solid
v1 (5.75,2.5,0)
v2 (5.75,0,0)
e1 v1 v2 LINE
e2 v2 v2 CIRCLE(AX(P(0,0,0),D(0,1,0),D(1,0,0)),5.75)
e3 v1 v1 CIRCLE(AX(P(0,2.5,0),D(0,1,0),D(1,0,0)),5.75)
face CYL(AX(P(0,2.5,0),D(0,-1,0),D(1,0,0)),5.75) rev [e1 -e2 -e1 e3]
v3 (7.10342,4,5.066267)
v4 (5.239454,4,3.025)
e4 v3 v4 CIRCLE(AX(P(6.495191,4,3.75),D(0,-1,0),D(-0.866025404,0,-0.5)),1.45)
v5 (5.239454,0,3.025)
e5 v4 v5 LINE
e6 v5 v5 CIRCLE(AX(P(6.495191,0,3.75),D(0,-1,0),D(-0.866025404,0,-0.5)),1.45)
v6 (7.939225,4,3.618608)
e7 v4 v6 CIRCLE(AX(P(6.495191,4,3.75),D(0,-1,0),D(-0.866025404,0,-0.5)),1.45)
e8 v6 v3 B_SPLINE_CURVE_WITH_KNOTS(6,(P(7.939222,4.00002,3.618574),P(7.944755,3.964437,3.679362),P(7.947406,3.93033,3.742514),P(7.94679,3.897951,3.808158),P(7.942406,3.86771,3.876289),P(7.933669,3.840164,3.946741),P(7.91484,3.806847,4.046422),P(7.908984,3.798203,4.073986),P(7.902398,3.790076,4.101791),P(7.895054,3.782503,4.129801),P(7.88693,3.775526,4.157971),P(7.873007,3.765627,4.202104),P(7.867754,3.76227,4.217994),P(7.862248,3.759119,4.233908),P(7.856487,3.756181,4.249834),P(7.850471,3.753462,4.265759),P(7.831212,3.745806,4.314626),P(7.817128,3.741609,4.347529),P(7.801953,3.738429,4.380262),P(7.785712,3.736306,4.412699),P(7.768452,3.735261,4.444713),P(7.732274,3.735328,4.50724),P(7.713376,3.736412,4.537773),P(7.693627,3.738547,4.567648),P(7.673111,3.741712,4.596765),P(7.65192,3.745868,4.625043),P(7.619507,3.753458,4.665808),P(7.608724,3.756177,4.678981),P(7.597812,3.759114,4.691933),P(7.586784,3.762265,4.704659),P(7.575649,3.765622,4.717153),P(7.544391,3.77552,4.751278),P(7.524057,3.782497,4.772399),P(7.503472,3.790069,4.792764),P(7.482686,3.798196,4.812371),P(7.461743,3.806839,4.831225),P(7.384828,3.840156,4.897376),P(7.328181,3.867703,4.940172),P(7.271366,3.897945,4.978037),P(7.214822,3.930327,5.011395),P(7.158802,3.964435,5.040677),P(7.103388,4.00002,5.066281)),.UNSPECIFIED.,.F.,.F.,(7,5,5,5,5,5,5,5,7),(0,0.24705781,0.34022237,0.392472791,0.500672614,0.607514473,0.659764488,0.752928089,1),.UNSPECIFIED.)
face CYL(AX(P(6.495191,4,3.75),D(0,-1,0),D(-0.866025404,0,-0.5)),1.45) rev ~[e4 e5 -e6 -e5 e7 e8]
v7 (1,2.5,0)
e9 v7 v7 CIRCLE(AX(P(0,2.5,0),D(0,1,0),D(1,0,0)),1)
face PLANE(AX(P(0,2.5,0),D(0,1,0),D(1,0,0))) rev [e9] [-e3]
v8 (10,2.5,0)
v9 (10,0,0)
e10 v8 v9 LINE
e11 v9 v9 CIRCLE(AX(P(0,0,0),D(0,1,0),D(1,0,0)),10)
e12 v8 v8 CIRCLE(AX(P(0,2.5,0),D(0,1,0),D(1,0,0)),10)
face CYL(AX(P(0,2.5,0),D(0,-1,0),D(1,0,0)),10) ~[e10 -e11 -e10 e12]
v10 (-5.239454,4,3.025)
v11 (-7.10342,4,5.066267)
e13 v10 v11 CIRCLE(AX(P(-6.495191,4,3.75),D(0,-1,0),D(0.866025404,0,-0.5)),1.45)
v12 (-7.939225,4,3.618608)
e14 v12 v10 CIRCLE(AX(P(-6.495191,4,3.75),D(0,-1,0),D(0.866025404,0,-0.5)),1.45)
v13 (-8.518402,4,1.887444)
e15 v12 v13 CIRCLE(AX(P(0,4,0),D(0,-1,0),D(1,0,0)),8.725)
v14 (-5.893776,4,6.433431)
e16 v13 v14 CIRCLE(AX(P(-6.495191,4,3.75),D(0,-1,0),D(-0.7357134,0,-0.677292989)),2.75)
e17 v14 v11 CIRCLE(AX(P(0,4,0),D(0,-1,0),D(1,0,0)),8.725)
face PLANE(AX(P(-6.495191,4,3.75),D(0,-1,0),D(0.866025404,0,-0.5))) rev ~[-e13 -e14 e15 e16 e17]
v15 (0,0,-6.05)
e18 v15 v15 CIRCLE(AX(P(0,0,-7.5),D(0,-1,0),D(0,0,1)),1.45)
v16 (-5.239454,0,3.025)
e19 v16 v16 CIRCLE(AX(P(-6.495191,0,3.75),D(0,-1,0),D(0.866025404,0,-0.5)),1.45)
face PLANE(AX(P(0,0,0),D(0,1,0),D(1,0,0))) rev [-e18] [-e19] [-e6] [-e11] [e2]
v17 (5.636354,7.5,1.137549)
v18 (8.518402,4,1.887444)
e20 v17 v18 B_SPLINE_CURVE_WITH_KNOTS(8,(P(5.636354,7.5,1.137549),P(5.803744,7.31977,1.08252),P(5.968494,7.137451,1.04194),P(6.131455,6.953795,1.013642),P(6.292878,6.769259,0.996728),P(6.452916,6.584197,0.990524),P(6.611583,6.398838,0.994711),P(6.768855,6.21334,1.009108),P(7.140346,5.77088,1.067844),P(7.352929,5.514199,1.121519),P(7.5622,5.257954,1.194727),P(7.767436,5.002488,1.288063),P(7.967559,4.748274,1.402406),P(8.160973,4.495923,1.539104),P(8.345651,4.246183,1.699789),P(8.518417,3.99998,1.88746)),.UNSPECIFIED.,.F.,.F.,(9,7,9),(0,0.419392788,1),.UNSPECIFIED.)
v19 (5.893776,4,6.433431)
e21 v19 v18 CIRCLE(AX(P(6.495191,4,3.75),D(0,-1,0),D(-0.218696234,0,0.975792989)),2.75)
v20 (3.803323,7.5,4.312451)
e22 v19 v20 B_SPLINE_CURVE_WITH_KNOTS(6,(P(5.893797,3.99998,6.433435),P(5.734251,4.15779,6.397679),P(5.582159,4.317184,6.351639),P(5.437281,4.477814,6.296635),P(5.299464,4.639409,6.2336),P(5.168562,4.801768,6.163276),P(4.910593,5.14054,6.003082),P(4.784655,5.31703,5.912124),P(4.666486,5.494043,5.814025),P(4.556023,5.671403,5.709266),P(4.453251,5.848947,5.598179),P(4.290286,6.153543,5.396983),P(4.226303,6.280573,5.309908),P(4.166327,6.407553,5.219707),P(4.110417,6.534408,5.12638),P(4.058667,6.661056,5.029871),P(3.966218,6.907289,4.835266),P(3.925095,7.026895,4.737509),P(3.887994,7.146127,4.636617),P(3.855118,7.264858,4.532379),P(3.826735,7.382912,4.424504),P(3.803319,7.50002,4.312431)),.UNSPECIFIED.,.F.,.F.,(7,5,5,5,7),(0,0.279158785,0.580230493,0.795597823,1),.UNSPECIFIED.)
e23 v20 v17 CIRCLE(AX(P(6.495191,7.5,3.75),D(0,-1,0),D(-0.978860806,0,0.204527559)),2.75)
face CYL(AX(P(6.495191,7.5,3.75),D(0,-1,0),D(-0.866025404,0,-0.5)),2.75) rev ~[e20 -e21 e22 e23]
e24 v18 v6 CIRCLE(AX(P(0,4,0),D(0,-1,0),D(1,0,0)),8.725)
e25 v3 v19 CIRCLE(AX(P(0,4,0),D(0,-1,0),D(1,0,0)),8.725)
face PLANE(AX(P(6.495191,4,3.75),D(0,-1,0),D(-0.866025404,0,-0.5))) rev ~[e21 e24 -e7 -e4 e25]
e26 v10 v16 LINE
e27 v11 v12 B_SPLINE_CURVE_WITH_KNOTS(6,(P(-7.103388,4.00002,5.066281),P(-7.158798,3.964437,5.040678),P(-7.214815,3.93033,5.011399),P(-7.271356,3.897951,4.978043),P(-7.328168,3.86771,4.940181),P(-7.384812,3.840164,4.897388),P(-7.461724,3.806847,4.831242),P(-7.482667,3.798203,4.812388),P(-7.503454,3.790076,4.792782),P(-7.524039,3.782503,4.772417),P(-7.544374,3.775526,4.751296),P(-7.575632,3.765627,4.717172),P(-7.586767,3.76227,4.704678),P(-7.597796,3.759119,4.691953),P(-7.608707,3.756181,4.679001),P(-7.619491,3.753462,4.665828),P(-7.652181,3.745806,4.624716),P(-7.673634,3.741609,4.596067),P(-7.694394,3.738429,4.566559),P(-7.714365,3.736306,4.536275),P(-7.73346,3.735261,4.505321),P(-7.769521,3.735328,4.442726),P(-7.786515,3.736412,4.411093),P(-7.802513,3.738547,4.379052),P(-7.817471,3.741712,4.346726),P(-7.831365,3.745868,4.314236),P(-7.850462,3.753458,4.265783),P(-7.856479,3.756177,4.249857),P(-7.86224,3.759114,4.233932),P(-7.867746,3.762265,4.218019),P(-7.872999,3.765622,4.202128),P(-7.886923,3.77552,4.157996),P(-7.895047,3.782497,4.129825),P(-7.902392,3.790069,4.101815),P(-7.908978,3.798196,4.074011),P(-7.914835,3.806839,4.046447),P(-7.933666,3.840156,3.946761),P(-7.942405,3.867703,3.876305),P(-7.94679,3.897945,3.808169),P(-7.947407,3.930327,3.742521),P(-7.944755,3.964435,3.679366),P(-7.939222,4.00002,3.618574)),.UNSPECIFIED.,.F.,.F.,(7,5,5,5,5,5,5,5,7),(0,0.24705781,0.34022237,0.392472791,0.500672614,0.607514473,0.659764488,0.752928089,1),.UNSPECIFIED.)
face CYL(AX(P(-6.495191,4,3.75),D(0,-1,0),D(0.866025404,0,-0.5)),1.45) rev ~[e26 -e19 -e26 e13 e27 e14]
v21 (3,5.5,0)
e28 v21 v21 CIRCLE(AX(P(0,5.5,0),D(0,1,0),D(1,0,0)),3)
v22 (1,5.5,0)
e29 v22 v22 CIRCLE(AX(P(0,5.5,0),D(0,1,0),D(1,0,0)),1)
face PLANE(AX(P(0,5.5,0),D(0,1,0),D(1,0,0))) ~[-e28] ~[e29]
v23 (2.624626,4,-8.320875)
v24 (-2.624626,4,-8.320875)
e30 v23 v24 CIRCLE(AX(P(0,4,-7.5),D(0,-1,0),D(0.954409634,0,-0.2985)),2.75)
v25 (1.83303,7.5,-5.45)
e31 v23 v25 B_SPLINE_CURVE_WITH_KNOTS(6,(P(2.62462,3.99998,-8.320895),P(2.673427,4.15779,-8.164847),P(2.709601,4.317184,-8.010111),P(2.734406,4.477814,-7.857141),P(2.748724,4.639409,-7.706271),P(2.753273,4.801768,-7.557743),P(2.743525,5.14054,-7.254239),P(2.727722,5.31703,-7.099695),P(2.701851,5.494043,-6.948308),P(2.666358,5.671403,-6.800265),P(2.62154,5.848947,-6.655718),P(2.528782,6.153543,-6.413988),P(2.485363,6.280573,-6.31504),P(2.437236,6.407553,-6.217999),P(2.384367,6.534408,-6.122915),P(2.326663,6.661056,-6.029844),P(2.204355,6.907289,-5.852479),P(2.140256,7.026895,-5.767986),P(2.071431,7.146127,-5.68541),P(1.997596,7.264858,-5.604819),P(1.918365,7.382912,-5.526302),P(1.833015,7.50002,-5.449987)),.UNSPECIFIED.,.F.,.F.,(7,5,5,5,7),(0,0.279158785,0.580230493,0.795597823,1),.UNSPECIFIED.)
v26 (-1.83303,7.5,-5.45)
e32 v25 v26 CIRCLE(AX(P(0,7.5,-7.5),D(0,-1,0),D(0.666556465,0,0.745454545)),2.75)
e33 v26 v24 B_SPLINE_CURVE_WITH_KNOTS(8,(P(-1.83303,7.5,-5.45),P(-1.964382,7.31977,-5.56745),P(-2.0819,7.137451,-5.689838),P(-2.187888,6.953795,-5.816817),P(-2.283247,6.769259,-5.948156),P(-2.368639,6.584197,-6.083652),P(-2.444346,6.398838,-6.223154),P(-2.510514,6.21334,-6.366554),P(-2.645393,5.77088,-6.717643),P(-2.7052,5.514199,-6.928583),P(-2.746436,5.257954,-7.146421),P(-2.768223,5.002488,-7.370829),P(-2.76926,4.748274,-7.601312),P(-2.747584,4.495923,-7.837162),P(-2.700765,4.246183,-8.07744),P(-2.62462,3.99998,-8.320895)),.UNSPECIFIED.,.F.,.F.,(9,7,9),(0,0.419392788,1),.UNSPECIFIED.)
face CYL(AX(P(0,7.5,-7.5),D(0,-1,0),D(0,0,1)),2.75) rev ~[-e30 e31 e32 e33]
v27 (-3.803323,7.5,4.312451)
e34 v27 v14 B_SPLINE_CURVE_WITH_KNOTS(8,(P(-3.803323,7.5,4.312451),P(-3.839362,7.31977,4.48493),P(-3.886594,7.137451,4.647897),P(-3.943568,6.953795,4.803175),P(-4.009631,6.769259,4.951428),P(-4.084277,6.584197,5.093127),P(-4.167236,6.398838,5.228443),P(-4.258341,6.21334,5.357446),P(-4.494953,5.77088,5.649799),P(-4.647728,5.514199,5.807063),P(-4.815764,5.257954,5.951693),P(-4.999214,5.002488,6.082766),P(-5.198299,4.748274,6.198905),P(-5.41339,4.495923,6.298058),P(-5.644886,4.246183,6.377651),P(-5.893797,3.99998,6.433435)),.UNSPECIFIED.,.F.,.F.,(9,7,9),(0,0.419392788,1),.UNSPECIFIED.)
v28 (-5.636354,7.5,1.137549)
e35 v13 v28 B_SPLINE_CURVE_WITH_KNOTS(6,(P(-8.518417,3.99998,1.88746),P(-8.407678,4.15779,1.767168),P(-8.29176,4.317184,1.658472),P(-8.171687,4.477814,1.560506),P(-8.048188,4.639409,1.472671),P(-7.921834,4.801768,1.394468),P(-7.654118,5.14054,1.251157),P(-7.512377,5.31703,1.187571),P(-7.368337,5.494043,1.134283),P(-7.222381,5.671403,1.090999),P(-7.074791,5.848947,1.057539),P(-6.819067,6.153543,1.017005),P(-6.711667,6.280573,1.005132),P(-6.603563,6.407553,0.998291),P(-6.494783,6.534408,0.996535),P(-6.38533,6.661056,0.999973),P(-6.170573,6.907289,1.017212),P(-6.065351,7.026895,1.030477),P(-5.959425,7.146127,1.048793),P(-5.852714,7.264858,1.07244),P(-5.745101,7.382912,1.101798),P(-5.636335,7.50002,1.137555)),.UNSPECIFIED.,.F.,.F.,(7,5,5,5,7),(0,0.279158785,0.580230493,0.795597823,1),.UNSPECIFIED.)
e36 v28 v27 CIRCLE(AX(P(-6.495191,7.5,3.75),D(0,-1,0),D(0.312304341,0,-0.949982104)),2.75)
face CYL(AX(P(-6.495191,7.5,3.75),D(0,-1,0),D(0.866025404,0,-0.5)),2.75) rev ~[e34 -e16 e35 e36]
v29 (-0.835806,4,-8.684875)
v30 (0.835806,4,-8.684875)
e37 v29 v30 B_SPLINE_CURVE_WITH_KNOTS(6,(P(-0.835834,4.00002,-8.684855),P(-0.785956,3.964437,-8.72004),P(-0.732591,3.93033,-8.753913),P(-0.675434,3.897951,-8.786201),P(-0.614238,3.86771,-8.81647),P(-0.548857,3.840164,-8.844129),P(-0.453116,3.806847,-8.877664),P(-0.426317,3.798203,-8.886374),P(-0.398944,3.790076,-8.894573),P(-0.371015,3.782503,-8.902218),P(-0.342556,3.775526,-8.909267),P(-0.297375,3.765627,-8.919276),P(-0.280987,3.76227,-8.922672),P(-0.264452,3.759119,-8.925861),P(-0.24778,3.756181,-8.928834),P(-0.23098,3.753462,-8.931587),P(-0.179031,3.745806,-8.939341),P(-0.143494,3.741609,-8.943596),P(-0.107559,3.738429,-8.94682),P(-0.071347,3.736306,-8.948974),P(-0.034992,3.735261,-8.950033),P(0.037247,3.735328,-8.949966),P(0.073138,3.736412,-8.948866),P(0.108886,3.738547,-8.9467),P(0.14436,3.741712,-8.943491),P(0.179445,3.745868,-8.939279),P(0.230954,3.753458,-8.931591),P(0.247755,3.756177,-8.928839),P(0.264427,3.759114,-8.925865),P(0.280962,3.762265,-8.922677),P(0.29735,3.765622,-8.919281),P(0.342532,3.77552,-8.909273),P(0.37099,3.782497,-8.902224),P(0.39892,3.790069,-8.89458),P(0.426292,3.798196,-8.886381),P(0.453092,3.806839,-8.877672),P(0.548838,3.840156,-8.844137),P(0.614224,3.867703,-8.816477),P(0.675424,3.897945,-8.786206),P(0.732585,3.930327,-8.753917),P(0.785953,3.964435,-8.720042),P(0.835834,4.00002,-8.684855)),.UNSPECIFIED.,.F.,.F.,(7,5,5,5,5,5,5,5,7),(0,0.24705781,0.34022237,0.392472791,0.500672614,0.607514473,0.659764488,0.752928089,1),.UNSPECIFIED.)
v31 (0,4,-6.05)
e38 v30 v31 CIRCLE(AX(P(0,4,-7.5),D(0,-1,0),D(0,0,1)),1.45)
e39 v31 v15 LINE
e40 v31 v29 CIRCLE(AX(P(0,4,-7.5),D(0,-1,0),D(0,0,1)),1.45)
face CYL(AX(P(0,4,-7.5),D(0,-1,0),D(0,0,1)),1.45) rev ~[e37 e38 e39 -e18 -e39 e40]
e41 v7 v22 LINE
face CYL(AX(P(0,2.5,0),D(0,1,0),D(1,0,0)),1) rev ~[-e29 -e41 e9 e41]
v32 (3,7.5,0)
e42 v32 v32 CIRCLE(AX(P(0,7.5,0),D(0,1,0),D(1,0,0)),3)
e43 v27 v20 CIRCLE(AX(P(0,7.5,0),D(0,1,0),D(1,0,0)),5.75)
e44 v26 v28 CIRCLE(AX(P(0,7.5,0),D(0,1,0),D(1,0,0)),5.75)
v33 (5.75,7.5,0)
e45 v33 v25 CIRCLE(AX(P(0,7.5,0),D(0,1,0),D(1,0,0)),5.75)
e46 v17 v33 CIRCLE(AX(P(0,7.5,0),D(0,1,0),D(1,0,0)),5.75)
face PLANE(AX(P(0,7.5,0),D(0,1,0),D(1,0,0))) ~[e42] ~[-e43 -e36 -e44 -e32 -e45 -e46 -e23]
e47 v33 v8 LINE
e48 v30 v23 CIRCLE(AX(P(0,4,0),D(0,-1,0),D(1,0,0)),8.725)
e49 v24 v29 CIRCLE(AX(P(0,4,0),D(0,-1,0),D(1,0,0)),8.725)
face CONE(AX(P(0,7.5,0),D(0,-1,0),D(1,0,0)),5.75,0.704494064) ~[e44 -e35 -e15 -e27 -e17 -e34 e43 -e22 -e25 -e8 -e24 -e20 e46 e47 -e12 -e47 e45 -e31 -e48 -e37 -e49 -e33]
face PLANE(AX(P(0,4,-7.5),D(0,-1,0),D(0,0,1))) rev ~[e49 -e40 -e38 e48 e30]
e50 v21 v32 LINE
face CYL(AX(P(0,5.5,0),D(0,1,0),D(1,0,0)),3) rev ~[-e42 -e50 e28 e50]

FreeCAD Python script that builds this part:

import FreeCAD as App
import Part
import Sketcher

doc = App.newDocument("Part")
body = doc.addObject("PartDesign::Body", "Body")

# Sketch on XY plane
sketch1 = body.newObject("Sketcher::SketchObject", "Sketch")
sketch1.AttachmentSupport = (doc.getObject("XY_Plane"), [""])
sketch1.MapMode = "FlatFace"
sketch1.addGeometry(Part.LineSegment(App.Vector(1, 5.5, 0), App.Vector(1, 2.5, 0)), False)
sketch1.addGeometry(Part.LineSegment(App.Vector(1, 2.5, 0), App.Vector(5.75, 2.5, 0)), False)
sketch1.addGeometry(Part.LineSegment(App.Vector(5.75, 2.5, 0), App.Vector(5.75, 0, 0)), False)
sketch1.addGeometry(Part.LineSegment(App.Vector(5.75, 0, 0), App.Vector(10, 0, 0)), False)
sketch1.addGeometry(Part.LineSegment(App.Vector(10, 0, 0), App.Vector(10, 2.5, 0)), False)
sketch1.addGeometry(Part.LineSegment(App.Vector(10, 2.5, 0), App.Vector(5.75, 7.5, 0)), False)
sketch1.addGeometry(Part.LineSegment(App.Vector(5.75, 7.5, 0), App.Vector(3, 7.5, 0)), False)
sketch1.addGeometry(Part.LineSegment(App.Vector(3, 7.5, 0), App.Vector(3, 5.5, 0)), False)
sketch1.addGeometry(Part.LineSegment(App.Vector(3, 5.5, 0), App.Vector(1, 5.5, 0)), False)
sketch1.addConstraint(Sketcher.Constraint("Coincident", 0, 2, 1, 1))
sketch1.addConstraint(Sketcher.Constraint("Coincident", 1, 2, 2, 1))
sketch1.addConstraint(Sketcher.Constraint("Coincident", 2, 2, 3, 1))
sketch1.addConstraint(Sketcher.Constraint("Coincident", 3, 2, 4, 1))
sketch1.addConstraint(Sketcher.Constraint("Coincident", 4, 2, 5, 1))
sketch1.addConstraint(Sketcher.Constraint("Coincident", 5, 2, 6, 1))
sketch1.addConstraint(Sketcher.Constraint("Coincident", 6, 2, 7, 1))
sketch1.addConstraint(Sketcher.Constraint("Coincident", 7, 2, 8, 1))
sketch1.addConstraint(Sketcher.Constraint("Coincident", 8, 2, 0, 1))
sketch1.addConstraint(Sketcher.Constraint("Vertical", 0))
sketch1.addConstraint(Sketcher.Constraint("Horizontal", 1))
sketch1.addConstraint(Sketcher.Constraint("Vertical", 2))
sketch1.addConstraint(Sketcher.Constraint("Horizontal", 3))
sketch1.addConstraint(Sketcher.Constraint("Vertical", 4))
sketch1.addConstraint(Sketcher.Constraint("Horizontal", 6))
sketch1.addConstraint(Sketcher.Constraint("Vertical", 7))
sketch1.addConstraint(Sketcher.Constraint("Horizontal", 8))
sketch1.addConstraint(Sketcher.Constraint("PointOnObject", 2, 2, -1))
sketch1.addConstraint(Sketcher.Constraint("Horizontal", 1, 2, 4, 2))
sketch1.addConstraint(Sketcher.Constraint("Vertical", 2, 2, 5, 2))
sketch1.addConstraint(Sketcher.Constraint("Equal", 8, 7))
sketch1.addConstraint(Sketcher.Constraint("DistanceX", 8, 2, 8, 1, 2.0))
sketch1.addConstraint(Sketcher.Constraint("DistanceY", 0, 2, 0, 1, 3.0))
sketch1.addConstraint(Sketcher.Constraint("DistanceY", 2, 2, 2, 1, 2.5))
sketch1.addConstraint(Sketcher.Constraint("DistanceX", -1, 1, 6, 2, 3.0))
sketch1.addConstraint(Sketcher.Constraint("DistanceX", -1, 1, 3, 2, 10.0))
sketch1.addConstraint(Sketcher.Constraint("DistanceX", 1, 1, 1, 2, 4.75))
revolution = body.newObject("PartDesign::Revolution", "Revolution")
revolution.Profile = sketch1
revolution.ReferenceAxis = (sketch1, ["V_Axis"])
revolution.Angle = 360

# Sketch on XZ plane
sketch2 = body.newObject("Sketcher::SketchObject", "Sketch001")
sketch2.AttachmentSupport = (doc.getObject("XZ_Plane"), [""])
sketch2.MapMode = "FlatFace"
sketch2.AttachmentOffset = App.Placement(App.Vector(0, 0, -7.5), App.Rotation())
sketch2.addGeometry(Part.Circle(App.Vector(0, -7.5, 0), App.Vector(0, 0, 1), 1.45), False)
sketch2.addConstraint(Sketcher.Constraint("PointOnObject", 0, 3, -2))
sketch2.addConstraint(Sketcher.Constraint("Diameter", 0, 2.9))
sketch2.addConstraint(Sketcher.Constraint("DistanceY", 0, 3, -1, 1, 7.5))
doc.recompute()
hole = body.newObject("PartDesign::Hole", "Hole")
hole.Profile = sketch2
hole.ThreadType = "None"
hole.Diameter = 2.9
hole.DepthType = "ThroughAll"
hole.HoleCutType = "Counterbore"
hole.HoleCutDiameter = 5.5
hole.HoleCutDepth = 3.5
hole.Reversed = True
doc.recompute()

polarpattern = body.newObject("PartDesign::PolarPattern", "PolarPattern")
polarpattern.Originals = [hole]
polarpattern.Axis = (doc.getObject("Y_Axis"), [""])
polarpattern.Angle = 360
polarpattern.Occurrences = 3
body.Tip = polarpattern

doc.recompute()
